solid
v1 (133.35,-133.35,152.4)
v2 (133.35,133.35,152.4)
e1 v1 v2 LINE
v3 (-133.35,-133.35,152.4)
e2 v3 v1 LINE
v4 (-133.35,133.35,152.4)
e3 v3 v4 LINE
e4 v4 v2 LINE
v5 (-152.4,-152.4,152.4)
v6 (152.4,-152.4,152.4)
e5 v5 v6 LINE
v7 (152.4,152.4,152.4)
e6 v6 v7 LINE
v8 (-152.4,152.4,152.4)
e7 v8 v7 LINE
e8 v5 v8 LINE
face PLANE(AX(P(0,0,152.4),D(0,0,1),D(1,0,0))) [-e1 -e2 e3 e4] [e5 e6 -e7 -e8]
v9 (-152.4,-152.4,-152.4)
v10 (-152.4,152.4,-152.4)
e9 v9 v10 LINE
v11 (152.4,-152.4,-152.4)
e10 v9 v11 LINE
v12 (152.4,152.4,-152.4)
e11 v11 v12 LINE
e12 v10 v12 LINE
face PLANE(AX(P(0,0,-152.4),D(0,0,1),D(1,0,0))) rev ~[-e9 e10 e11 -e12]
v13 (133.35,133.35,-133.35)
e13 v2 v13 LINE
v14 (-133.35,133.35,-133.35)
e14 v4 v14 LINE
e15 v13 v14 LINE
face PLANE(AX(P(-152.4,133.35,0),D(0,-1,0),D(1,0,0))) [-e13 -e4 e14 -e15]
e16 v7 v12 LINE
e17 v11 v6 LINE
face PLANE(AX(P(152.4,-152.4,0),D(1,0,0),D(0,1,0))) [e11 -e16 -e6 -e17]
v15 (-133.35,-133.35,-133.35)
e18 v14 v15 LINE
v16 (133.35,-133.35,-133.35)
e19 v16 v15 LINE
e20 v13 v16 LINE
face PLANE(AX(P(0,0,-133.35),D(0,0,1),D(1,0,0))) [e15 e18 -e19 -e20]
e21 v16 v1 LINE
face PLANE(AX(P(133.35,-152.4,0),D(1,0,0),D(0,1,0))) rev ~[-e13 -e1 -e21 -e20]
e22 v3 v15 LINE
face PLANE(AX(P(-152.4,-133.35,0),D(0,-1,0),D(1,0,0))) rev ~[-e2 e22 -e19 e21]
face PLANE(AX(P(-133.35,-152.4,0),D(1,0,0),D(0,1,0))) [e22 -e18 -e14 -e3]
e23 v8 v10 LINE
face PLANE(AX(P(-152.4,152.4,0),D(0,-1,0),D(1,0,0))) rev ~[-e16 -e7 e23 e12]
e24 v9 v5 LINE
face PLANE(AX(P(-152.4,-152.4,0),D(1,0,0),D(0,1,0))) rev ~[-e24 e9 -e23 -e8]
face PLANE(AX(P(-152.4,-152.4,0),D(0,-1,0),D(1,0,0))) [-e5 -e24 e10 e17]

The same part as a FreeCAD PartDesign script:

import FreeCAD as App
import Part
import Sketcher
Q = App.Units.Quantity


def faces_at(feature, points):
    """Names of the faces that lie closest to the given points."""
    faces = feature.Shape.Faces
    near = lambda p: min(range(len(faces)), key=lambda i: faces[i].distToShape(Part.Vertex(*p))[0])
    return sorted({f"Face{near(p) + 1}" for p in points})


def add_polygon(sketch, points):
    """Adds a closed chain of lines whose ends are joined by coincident constraints."""
    first, n = sketch.GeometryCount, len(points)
    for a, b in zip(points, points[1:] + points[:1]):
        sketch.addGeometry(Part.LineSegment(App.Vector(*a, 0), App.Vector(*b, 0)), False)
    for i in range(n):
        sketch.addConstraint(Sketcher.Constraint("Coincident", first + i, 2, first + (i + 1) % n, 1))

doc = App.newDocument("Part")
body = doc.addObject("PartDesign::Body", "Body")

# Sketch on XY plane
sketch1 = body.newObject("Sketcher::SketchObject", "Sketch")
sketch1.AttachmentSupport = (doc.getObject("XY_Plane"), [""])
sketch1.MapMode = "FlatFace"
add_polygon(sketch1, [(-152.4, 152.4), (-152.4, -152.4), (152.4, -152.4), (152.4, 152.4)])  # lines 0-3
sketch1.addConstraint([
    Sketcher.Constraint("Vertical", 0),
    Sketcher.Constraint("Horizontal", 1),
    Sketcher.Constraint("Vertical", 2),
    Sketcher.Constraint("Horizontal", 3),
    Sketcher.Constraint("Symmetric", 0, 2, 2, 2, -1, 1),
    Sketcher.Constraint("Equal", 3, 0),
    Sketcher.Constraint("DistanceX", 1, 1, 1, 2, Q("12 in")),
])
pad1 = body.newObject("PartDesign::Pad", "Pad")
pad1.Profile = sketch1
pad1.Length = Q("12 in")
pad1.Midplane = True
doc.recompute()

thickness = body.newObject("PartDesign::Thickness", "Thickness")
thickness.Base = (pad1, faces_at(pad1, [(0, 0, 152.4)]))
thickness.Value = Q("0.75 in")
thickness.Reversed = True
thickness.Join = "Arc"

doc.recompute()
